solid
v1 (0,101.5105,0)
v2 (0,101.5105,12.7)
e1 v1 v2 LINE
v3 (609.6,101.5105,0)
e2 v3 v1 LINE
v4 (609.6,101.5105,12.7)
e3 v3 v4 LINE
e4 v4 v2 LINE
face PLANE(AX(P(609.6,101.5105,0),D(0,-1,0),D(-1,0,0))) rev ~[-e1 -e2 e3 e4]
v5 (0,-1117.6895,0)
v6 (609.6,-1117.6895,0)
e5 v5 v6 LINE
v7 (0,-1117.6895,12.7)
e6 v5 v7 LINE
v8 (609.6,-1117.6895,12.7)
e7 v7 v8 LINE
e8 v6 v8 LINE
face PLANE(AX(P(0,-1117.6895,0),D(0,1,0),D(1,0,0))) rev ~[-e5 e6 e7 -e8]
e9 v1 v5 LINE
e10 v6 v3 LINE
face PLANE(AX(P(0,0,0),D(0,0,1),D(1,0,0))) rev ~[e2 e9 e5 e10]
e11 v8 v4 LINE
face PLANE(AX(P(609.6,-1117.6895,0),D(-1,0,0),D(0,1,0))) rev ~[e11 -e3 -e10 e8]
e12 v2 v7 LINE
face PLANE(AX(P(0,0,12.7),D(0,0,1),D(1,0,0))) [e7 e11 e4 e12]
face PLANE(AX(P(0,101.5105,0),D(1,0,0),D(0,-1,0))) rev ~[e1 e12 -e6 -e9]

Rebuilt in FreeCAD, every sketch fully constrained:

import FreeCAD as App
import Part
import Sketcher
Q = App.Units.Quantity

doc = App.newDocument("Part")
body = doc.addObject("PartDesign::Body", "Body")

# Sketch on XY plane
sketch1 = doc.addObject("Sketcher::SketchObject", "Sketch")
body.addObject(sketch1)
sketch1.AttachmentSupport = (doc.XY_Plane, [""])
sketch1.MapMode = "FlatFace"
sketch1.addGeometry([
    Part.LineSegment(App.Vector(0, 101.5105, 0), App.Vector(0, -1117.6895, 0)),
    Part.LineSegment(App.Vector(0, -1117.6895, 0), App.Vector(609.6, -1117.6895, 0)),
    Part.LineSegment(App.Vector(609.6, -1117.6895, 0), App.Vector(609.6, 101.5105, 0)),
    Part.LineSegment(App.Vector(609.6, 101.5105, 0), App.Vector(0, 101.5105, 0)),
], False)
sketch1.addConstraint([
    Sketcher.Constraint("Coincident", 0, 2, 1, 1),
    Sketcher.Constraint("Coincident", 1, 2, 2, 1),
    Sketcher.Constraint("Coincident", 2, 2, 3, 1),
    Sketcher.Constraint("Coincident", 3, 2, 0, 1),
    Sketcher.Constraint("Vertical", 0),
    Sketcher.Constraint("Horizontal", 1),
    Sketcher.Constraint("Vertical", 2),
    Sketcher.Constraint("Horizontal", 3),
    Sketcher.Constraint("PointOnObject", 0, 2, -2),
    Sketcher.Constraint("DistanceX", 1, 1, 1, 2, Q("24 in")),
    Sketcher.Constraint("DistanceY", 0, 2, 0, 1, Q("48 in")),
    Sketcher.Constraint("DistanceY", 0, 2, -1, 1, Q("1117.6895 mm")),
])
pad1 = doc.addObject("PartDesign::Pad", "Pad")
body.addObject(pad1)
pad1.Profile = sketch1
pad1.Length = Q("0.5 in")

doc.recompute()
